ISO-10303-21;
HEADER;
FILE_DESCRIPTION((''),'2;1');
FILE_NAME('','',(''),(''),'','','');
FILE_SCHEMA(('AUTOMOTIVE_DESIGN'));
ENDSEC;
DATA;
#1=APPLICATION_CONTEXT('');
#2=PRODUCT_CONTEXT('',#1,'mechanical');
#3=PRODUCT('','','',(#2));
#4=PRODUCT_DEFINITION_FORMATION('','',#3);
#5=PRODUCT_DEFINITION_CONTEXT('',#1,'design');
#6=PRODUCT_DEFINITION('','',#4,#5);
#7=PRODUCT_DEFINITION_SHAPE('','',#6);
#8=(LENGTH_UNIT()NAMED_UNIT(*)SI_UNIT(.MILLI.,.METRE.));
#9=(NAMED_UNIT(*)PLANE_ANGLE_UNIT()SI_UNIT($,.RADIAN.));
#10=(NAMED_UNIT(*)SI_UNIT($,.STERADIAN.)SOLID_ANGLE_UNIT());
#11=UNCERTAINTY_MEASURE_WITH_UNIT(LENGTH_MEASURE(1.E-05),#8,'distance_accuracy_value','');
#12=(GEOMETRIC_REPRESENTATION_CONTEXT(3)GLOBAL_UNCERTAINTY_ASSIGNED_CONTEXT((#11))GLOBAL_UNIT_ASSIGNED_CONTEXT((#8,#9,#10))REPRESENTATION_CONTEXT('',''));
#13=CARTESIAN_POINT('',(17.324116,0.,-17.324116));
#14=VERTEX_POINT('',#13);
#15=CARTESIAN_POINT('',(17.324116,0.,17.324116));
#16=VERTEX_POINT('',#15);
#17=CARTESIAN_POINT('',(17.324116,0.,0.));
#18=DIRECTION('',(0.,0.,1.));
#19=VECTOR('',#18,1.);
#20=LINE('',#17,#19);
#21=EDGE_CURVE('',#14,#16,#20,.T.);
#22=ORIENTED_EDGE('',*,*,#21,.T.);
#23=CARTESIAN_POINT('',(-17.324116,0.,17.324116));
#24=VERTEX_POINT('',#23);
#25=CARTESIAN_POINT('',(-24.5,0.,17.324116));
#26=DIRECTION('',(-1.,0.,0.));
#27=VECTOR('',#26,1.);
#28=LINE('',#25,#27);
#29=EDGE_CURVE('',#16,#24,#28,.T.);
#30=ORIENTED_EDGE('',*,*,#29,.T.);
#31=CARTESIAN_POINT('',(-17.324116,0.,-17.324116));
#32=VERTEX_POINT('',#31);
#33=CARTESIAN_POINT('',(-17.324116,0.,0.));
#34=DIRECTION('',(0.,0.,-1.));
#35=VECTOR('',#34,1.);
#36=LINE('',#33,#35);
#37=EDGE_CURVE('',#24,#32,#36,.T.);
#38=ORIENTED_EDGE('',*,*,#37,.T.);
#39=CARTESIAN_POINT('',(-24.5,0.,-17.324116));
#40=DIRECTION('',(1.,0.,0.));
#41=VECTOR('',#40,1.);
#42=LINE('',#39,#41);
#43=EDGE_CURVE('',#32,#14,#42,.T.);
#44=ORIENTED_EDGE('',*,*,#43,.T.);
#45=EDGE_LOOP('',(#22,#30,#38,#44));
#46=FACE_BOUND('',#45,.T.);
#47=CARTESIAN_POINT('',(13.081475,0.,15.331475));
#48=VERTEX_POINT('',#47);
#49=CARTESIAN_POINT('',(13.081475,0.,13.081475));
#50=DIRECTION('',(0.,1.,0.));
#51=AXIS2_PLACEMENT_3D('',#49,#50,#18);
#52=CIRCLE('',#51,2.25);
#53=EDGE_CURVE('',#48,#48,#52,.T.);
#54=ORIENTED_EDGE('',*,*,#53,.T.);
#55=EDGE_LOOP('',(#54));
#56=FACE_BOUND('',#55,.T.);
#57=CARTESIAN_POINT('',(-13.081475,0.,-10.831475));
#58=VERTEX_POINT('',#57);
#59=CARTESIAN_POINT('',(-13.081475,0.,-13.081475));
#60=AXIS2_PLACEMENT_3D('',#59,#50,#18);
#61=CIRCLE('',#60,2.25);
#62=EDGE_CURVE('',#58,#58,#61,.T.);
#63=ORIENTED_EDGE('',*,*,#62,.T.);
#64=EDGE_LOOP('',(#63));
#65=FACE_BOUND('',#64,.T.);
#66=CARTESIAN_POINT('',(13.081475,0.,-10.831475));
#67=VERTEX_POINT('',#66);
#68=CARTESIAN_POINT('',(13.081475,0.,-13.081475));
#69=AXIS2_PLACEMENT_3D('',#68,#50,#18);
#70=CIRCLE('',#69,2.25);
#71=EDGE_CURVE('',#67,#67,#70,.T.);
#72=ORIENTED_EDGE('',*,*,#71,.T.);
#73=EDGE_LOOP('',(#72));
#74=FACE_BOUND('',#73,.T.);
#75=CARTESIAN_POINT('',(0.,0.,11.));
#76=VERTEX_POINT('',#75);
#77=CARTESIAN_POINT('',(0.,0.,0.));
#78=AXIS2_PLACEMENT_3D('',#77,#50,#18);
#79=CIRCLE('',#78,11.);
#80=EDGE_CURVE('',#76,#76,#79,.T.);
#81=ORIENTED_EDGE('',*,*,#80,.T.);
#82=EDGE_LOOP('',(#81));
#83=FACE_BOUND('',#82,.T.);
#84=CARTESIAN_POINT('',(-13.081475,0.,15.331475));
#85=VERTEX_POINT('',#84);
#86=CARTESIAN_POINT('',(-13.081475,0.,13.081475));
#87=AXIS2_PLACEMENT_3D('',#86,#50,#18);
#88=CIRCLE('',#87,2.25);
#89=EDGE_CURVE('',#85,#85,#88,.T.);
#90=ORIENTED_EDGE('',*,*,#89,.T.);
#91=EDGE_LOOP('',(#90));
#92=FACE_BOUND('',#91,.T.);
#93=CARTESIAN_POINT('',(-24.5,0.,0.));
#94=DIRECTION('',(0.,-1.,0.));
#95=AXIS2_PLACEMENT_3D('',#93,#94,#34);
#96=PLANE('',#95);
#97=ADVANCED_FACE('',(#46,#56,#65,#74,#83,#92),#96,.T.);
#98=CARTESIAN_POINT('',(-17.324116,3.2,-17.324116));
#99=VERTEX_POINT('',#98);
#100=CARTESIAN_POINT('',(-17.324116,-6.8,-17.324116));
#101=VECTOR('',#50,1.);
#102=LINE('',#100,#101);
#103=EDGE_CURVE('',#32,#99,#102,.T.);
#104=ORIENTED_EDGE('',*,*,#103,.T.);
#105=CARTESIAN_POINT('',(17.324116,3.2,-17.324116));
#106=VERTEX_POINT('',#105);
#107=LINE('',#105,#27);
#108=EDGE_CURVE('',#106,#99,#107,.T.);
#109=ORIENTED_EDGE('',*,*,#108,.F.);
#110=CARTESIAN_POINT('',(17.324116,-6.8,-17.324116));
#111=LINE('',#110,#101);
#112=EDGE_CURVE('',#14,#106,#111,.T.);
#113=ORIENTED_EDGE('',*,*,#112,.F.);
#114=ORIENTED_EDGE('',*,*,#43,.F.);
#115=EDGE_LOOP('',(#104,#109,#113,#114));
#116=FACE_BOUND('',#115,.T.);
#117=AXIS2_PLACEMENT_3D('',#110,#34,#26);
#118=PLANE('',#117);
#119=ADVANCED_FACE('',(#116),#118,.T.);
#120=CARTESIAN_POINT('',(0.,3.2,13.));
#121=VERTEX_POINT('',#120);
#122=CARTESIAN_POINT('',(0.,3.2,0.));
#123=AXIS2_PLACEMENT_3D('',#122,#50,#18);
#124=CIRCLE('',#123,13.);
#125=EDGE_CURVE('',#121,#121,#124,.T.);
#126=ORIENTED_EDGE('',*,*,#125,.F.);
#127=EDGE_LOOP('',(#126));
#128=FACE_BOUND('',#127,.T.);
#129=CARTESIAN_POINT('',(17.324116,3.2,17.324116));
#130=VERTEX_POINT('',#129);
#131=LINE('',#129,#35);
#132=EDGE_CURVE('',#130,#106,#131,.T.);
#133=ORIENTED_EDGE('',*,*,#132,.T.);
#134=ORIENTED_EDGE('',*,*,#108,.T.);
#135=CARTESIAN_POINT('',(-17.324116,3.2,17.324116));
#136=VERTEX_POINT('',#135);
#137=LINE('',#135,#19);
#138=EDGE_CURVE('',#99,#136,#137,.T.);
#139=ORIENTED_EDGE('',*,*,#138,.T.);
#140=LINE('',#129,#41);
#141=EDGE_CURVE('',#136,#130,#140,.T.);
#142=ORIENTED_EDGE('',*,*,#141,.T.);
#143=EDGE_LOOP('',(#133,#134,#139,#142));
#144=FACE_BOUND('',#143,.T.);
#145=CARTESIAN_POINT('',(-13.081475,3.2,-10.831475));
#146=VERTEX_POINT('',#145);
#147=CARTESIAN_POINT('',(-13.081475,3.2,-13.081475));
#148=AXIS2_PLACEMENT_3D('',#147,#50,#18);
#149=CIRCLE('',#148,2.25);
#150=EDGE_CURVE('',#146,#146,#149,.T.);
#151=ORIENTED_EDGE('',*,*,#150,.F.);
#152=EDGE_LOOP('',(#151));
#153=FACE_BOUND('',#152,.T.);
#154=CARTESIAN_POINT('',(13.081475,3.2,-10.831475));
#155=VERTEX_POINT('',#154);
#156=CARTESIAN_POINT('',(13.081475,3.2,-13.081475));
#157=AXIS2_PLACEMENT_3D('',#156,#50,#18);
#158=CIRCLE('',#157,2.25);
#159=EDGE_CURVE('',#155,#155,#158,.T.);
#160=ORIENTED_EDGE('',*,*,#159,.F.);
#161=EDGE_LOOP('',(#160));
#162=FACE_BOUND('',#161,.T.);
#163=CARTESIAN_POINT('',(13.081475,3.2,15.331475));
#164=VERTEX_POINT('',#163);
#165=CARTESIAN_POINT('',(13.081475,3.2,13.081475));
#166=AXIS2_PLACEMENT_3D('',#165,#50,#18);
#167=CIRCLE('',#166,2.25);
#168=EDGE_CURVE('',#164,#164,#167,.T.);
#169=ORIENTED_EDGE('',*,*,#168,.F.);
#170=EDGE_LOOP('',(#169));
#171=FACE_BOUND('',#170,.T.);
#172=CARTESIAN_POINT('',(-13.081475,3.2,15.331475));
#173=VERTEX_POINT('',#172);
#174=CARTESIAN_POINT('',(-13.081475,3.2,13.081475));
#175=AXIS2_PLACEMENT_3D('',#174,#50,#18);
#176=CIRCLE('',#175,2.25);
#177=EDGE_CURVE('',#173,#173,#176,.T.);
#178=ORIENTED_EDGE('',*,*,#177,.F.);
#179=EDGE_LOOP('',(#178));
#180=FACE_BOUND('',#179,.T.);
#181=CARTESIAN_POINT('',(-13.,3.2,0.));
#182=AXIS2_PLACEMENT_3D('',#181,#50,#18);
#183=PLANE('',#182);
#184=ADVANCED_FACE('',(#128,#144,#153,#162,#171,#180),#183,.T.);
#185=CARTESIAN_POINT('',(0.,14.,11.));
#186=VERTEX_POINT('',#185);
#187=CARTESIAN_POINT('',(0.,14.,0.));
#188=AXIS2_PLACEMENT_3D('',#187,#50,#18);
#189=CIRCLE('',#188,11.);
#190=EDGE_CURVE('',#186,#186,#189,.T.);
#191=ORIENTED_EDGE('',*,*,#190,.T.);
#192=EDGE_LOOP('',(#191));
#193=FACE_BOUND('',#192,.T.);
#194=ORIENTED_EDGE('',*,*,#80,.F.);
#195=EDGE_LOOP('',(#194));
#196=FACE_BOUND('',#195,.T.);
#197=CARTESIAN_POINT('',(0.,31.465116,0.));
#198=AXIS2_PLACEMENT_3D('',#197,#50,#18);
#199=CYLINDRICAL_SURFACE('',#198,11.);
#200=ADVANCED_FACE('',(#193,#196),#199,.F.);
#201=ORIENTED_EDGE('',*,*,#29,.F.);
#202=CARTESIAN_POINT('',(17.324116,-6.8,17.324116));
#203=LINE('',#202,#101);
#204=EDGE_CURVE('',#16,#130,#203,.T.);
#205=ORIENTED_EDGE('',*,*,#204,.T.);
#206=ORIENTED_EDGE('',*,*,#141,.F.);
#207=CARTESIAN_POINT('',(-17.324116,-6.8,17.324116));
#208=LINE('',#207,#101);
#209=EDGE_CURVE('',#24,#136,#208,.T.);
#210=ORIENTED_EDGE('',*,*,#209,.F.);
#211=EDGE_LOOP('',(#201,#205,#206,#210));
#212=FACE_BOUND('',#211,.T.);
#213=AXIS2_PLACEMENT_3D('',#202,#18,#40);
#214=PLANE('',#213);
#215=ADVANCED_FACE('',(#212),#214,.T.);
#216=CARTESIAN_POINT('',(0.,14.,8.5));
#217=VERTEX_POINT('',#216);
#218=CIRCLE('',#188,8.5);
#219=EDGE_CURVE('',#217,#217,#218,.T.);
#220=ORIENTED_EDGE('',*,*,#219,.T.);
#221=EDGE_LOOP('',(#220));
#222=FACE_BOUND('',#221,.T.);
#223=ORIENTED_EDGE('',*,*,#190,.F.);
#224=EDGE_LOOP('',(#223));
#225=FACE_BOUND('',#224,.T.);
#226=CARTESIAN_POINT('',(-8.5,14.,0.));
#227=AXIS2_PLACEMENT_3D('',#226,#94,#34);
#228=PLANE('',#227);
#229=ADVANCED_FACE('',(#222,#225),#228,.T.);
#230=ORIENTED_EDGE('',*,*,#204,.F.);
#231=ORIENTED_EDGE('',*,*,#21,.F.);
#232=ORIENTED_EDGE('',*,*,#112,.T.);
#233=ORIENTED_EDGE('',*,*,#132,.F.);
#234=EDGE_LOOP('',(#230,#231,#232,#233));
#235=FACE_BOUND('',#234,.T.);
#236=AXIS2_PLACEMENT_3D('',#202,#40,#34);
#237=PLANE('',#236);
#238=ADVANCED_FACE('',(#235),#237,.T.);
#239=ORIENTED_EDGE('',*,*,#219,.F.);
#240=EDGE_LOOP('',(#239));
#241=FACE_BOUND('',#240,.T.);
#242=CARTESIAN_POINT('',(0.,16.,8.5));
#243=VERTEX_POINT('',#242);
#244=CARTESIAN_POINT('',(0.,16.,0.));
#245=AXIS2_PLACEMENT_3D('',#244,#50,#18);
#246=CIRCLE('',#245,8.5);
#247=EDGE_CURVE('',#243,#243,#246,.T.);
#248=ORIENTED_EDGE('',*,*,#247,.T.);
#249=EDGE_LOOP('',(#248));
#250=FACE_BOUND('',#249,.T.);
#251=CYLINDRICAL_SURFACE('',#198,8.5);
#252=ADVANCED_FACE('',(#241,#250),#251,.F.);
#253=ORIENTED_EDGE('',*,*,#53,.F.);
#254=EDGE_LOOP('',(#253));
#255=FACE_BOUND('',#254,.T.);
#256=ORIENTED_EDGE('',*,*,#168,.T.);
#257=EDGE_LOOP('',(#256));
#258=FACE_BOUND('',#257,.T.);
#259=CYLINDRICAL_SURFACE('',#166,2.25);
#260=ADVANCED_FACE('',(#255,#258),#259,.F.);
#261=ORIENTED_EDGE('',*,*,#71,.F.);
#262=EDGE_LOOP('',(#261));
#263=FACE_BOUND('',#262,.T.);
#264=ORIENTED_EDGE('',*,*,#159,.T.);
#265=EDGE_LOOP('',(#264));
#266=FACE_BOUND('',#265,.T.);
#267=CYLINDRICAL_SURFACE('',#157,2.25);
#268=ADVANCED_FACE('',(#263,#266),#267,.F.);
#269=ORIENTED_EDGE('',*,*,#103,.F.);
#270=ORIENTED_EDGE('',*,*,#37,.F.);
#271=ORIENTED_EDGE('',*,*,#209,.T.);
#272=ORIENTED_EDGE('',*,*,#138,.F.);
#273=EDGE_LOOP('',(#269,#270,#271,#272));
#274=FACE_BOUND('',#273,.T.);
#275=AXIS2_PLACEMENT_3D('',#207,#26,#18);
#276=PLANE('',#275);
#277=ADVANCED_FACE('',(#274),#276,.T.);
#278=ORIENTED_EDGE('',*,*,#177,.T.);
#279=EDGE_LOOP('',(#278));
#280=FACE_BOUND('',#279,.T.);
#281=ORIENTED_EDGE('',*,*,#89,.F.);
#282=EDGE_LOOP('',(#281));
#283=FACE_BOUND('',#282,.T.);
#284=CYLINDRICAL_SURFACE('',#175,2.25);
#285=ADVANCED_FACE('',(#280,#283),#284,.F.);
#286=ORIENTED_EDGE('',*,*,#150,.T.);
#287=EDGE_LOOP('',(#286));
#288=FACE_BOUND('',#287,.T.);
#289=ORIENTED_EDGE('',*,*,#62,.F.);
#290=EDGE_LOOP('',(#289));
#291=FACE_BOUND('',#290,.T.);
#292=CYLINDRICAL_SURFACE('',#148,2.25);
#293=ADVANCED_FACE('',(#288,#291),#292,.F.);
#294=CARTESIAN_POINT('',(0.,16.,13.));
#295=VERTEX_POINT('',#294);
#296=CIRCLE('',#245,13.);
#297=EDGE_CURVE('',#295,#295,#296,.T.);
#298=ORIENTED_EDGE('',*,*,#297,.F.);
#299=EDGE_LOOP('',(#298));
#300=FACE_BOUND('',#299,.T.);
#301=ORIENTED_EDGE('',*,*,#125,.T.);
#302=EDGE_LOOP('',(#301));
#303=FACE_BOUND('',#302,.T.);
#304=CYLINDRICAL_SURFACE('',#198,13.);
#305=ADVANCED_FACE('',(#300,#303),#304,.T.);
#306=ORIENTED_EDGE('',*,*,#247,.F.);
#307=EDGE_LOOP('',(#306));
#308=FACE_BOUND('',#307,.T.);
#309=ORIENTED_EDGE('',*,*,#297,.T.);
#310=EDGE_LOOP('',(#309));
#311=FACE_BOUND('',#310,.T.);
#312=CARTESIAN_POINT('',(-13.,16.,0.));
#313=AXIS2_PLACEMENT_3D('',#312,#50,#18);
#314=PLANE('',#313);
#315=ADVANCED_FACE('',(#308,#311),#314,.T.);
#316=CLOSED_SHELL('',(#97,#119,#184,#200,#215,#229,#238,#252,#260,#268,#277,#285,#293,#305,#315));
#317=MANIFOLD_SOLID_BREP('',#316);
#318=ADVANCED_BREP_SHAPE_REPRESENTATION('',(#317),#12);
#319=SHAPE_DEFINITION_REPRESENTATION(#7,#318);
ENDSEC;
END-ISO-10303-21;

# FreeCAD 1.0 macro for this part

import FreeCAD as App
import Part
import Sketcher
Q = App.Units.Quantity


def add_polygon(sketch, points):
    """Adds a closed chain of lines whose ends are joined by coincident constraints."""
    first, n = sketch.GeometryCount, len(points)
    for a, b in zip(points, points[1:] + points[:1]):
        sketch.addGeometry(Part.LineSegment(App.Vector(*a, 0), App.Vector(*b, 0)), False)
    for i in range(n):
        sketch.addConstraint(Sketcher.Constraint("Coincident", first + i, 2, first + (i + 1) % n, 1))

doc = App.newDocument("Part")
body = doc.addObject("PartDesign::Body", "Body")

# Sketch on XY plane
sketch1 = body.newObject("Sketcher::SketchObject", "Sketch")
sketch1.AttachmentSupport = (doc.getObject("XY_Plane"), [""])
sketch1.MapMode = "FlatFace"
add_polygon(sketch1, [(-24.5, 0), (-11, 0), (-11, 14), (-8.5, 14), (-8.5, 16), (-13, 16), (-13, 3.2), (-24.5, 3.2)])  # lines 0-7
sketch1.addConstraint(Sketcher.Constraint("Horizontal", 0))
sketch1.addConstraint(Sketcher.Constraint("Vertical", 1))
sketch1.addConstraint(Sketcher.Constraint("Horizontal", 2))
sketch1.addConstraint(Sketcher.Constraint("Vertical", 3))
sketch1.addConstraint(Sketcher.Constraint("Horizontal", 4))
sketch1.addConstraint(Sketcher.Constraint("Vertical", 5))
sketch1.addConstraint(Sketcher.Constraint("Horizontal", 6))
sketch1.addConstraint(Sketcher.Constraint("Vertical", 7))
sketch1.addConstraint(Sketcher.Constraint("PointOnObject", 0, 2, -1))
sketch1.addConstraint(Sketcher.Constraint("DistanceY", 1, 1, 1, 2, Q("14 mm")))
sketch1.addConstraint(Sketcher.Constraint("DistanceY", 3, 1, 3, 2, Q("2 mm")))
sketch1.addConstraint(Sketcher.Constraint("DistanceX", 0, 1, 0, 2, Q("13.5 mm")))
sketch1.addConstraint(Sketcher.Constraint("DistanceX", 2, 1, 2, 2, Q("2.5 mm")))
sketch1.addConstraint(Sketcher.Constraint("DistanceX", 4, 2, 4, 1, Q("4.5 mm")))
sketch1.addConstraint(Sketcher.Constraint("DistanceY", 5, 2, 5, 1, Q("12.8 mm")))
sketch1.addConstraint(Sketcher.Constraint("DistanceX", 0, 2, -1, 1, Q("11 mm")))
revolution = body.newObject("PartDesign::Revolution", "Revolution")
revolution.Profile = sketch1
revolution.ReferenceAxis = (sketch1, ["V_Axis"])
revolution.Angle = 360

# Sketch on XZ plane
sketch2 = body.newObject("Sketcher::SketchObject", "Sketch001")
sketch2.AttachmentSupport = (doc.getObject("XZ_Plane"), [""])
sketch2.MapMode = "FlatFace"
sketch2.AttachmentOffset = App.Placement(App.Vector(0, 0, -3.2), App.Rotation())
sketch2.addGeometry(Part.Circle(App.Vector(-13.081475, 13.081475, 0), App.Vector(0, 0, 1), 2.25), False)
sketch2.addGeometry(Part.Circle(App.Vector(-13.081475, -13.081475, 0), App.Vector(0, 0, 1), 2.25), False)
sketch2.addGeometry(Part.Circle(App.Vector(13.081475, -13.081475, 0), App.Vector(0, 0, 1), 2.25), False)
sketch2.addGeometry(Part.Circle(App.Vector(13.081475, 13.081475, 0), App.Vector(0, 0, 1), 2.25), False)
sketch2.addConstraint(Sketcher.Constraint("Equal", 0, 1))
sketch2.addConstraint(Sketcher.Constraint("Equal", 1, 2))
sketch2.addConstraint(Sketcher.Constraint("Equal", 2, 3))
sketch2.addConstraint(Sketcher.Constraint("Symmetric", 0, 3, 2, 3, -1, 1))
sketch2.addConstraint(Sketcher.Constraint("Symmetric", 1, 3, 3, 3, -1, 1))
sketch2.addConstraint(Sketcher.Constraint("Symmetric", 1, 3, 2, 3, -2))
sketch2.addConstraint(Sketcher.Constraint("Diameter", 0, Q("4.5 mm")))
sketch2.addConstraint(Sketcher.Constraint("DistanceY", 1, 3, 0, 3, Q("26.162951 mm")))
sketch2.addConstraint(Sketcher.Constraint("DistanceX", 1, 3, 2, 3, Q("26.162951 mm")))
doc.recompute()
hole = body.newObject("PartDesign::Hole", "Hole")
hole.Profile = sketch2
hole.ThreadType = "None"
hole.Diameter = 4.5
hole.DepthType = "ThroughAll"
hole.Reversed = True

# Sketch on XZ plane
sketch3 = body.newObject("Sketcher::SketchObject", "Sketch002")
sketch3.AttachmentSupport = (doc.getObject("XZ_Plane"), [""])
sketch3.MapMode = "FlatFace"
sketch3.AttachmentOffset = App.Placement(App.Vector(0, 0, -3.2), App.Rotation())
add_polygon(sketch3, [(-42.923779, -32.533144), (-42.923779, 32.533144), (42.923779, 32.533144), (42.923779, -32.533144)])  # lines 0-3
add_polygon(sketch3, [(17.324116, 17.324116), (-17.324116, 17.324116), (-17.324116, -17.324116), (17.324116, -17.324116)])  # lines 4-7
sketch3.addConstraint(Sketcher.Constraint("Vertical", 0))
sketch3.addConstraint(Sketcher.Constraint("Horizontal", 1))
sketch3.addConstraint(Sketcher.Constraint("Vertical", 2))
sketch3.addConstraint(Sketcher.Constraint("Horizontal", 3))
sketch3.addConstraint(Sketcher.Constraint("Horizontal", 4))
sketch3.addConstraint(Sketcher.Constraint("Vertical", 5))
sketch3.addConstraint(Sketcher.Constraint("Horizontal", 6))
sketch3.addConstraint(Sketcher.Constraint("Vertical", 7))
sketch3.addConstraint(Sketcher.Constraint("Symmetric", 0, 2, 2, 2, -1, 1))
sketch3.addConstraint(Sketcher.Constraint("Symmetric", 4, 2, 6, 2, -1, 1))
sketch3.addConstraint(Sketcher.Constraint("Equal", 6, 5))
sketch3.addConstraint(Sketcher.Constraint("DistanceX", 1, 1, 1, 2, Q("85.847559 mm")))
sketch3.addConstraint(Sketcher.Constraint("DistanceX", 4, 2, 4, 1, Q("34.648232 mm")))
sketch3.addConstraint(Sketcher.Constraint("DistanceY", 0, 1, 0, 2, Q("65.066288 mm")))
pocket1 = body.newObject("PartDesign::Pocket", "Pocket")
pocket1.Profile = sketch3
pocket1.Length = 10
pocket1.Reversed = True

doc.recompute()
